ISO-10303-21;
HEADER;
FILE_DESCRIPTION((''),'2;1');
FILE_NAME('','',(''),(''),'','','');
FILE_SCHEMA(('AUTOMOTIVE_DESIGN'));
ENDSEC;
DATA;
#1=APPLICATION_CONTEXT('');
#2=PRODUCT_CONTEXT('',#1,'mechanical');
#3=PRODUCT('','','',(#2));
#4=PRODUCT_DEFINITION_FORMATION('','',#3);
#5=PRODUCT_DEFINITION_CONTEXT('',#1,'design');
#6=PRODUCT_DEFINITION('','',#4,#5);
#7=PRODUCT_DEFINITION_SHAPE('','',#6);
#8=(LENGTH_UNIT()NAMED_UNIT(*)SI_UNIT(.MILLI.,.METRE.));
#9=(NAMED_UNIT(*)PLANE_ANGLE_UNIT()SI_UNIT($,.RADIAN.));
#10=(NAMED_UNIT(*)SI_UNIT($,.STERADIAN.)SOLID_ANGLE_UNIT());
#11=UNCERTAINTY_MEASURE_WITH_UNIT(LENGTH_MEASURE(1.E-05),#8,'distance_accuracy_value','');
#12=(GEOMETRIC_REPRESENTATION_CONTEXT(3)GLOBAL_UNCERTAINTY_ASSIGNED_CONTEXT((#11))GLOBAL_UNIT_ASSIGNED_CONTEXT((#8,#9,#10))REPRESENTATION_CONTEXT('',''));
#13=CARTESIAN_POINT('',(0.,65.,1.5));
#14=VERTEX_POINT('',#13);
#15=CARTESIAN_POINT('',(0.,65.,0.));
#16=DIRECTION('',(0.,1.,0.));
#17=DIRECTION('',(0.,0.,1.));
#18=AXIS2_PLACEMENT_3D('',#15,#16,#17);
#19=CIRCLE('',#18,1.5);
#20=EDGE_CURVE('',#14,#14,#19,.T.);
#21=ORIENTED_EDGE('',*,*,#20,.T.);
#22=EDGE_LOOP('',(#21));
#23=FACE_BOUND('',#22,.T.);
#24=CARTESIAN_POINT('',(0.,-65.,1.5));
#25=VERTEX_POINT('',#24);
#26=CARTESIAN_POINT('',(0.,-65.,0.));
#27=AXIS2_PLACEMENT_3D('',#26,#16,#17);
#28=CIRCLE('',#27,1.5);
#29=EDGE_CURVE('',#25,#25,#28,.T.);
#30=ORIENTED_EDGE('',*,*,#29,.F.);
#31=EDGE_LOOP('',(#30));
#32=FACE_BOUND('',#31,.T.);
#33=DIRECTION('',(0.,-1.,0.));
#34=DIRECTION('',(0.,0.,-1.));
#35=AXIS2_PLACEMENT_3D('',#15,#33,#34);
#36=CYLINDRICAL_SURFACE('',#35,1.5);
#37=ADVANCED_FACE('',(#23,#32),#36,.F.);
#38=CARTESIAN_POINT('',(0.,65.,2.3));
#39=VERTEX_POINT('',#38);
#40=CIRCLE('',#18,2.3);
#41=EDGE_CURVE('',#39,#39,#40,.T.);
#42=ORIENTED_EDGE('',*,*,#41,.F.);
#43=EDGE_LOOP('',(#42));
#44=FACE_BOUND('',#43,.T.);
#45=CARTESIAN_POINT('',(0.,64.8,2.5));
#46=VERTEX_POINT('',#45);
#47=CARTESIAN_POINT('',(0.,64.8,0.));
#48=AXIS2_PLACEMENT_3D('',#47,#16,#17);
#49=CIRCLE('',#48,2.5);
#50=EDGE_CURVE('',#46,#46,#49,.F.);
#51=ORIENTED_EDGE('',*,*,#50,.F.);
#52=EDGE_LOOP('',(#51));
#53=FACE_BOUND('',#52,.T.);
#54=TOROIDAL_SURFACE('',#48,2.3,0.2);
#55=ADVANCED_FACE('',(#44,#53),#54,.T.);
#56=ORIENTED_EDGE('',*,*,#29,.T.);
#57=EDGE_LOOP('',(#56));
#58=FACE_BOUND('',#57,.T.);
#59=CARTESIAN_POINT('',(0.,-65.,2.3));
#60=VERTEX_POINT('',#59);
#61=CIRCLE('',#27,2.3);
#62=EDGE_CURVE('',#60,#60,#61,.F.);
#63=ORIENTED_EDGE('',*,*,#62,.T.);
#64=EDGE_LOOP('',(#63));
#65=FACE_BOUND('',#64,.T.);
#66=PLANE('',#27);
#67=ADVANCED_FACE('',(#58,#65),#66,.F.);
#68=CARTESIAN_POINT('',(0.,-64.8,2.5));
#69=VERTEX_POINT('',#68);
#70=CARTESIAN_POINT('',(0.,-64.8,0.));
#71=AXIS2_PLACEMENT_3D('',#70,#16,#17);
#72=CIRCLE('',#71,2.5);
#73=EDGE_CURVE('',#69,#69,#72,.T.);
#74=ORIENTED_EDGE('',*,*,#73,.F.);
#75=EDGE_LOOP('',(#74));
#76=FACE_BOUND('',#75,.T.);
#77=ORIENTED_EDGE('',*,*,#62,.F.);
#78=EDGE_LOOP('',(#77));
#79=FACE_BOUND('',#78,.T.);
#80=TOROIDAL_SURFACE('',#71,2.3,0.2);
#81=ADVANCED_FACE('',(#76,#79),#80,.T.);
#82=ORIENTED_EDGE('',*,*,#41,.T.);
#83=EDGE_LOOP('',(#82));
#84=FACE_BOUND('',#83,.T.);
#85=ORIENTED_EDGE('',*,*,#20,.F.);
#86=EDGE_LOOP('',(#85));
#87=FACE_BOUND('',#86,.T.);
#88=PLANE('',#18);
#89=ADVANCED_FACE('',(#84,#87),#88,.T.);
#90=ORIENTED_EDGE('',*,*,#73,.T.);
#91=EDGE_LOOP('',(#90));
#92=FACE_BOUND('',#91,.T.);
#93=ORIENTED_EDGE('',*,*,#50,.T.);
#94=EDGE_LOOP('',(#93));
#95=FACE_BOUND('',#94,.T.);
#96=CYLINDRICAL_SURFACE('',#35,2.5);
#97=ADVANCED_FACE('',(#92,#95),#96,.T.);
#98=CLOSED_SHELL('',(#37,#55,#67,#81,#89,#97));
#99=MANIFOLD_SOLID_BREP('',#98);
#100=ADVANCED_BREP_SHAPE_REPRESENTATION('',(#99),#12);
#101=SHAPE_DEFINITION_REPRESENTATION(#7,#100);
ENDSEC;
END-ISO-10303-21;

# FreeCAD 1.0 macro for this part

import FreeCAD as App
import Part
import Sketcher

V = App.Vector
Q = App.Units.Quantity


def edges_at(feature, points):
    """Names of the edges that pass closest to the given points."""
    edges = feature.Shape.Edges
    near = lambda p: min(range(len(edges)), key=lambda i: edges[i].distToShape(Part.Vertex(*p))[0])
    return sorted({f"Edge{near(p) + 1}" for p in points})

doc = App.newDocument("Part")
body = doc.addObject("PartDesign::Body", "Body")

sketch1 = body.newObject("Sketcher::SketchObject", "Sketch")
sketch1.AttachmentSupport = (doc.getObject("XZ_Plane"), [""])
sketch1.MapMode = "FlatFace"
sketch1.addGeometry(Part.Circle(V(0, 0, 0), V(0, 0, 1), 2.5), False)
sketch1.addGeometry(Part.Circle(V(0, 0, 0), V(0, 0, 1), 1.5), False)
sketch1.addConstraint(Sketcher.Constraint("Coincident", 0, 3, -1, 1))
sketch1.addConstraint(Sketcher.Constraint("Coincident", 1, 3, -1, 1))
sketch1.addConstraint(Sketcher.Constraint("Diameter", 0, Q("5 mm")))
sketch1.addConstraint(Sketcher.Constraint("Diameter", 1, Q("3 mm")))
pad1 = body.newObject("PartDesign::Pad", "Pad")
pad1.Profile = sketch1
pad1.Length = 130
pad1.Midplane = True
doc.recompute()

fillet = body.newObject("PartDesign::Fillet", "Fillet")
fillet.Base = (pad1, edges_at(pad1, [(-2.5, -65, 0), (-2.5, 65, 0)]))
fillet.Radius = 0.2

doc.recompute()
